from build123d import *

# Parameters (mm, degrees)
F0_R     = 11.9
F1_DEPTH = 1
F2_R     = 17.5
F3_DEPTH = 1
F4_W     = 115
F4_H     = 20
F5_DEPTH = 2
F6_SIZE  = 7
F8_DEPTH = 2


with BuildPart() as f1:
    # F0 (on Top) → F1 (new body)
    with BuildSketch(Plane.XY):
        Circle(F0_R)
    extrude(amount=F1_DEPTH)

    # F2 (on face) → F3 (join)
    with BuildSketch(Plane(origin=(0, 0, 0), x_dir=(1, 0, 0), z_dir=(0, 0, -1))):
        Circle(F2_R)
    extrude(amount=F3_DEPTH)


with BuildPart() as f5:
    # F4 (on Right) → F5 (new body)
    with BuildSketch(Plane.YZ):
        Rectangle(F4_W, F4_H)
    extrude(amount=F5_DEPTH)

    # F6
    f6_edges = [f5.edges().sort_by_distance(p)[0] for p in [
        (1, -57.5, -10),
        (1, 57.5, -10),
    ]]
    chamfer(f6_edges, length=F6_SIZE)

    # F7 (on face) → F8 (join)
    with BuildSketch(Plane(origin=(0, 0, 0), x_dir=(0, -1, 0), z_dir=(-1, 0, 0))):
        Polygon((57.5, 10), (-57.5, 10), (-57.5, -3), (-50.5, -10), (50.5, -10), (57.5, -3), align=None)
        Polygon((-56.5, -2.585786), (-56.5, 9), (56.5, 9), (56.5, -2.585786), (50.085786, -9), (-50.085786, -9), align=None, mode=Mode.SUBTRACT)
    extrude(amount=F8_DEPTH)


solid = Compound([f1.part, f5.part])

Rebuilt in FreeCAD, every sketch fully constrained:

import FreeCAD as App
import Part
import Sketcher
from FreeCAD import Vector


def edges_at(feature, points):
    """Names of the edges that pass closest to the given points."""
    edges = feature.Shape.Edges
    near = lambda p: min(range(len(edges)), key=lambda i: edges[i].distToShape(Part.Vertex(*p))[0])
    return sorted({f"Edge{near(p) + 1}" for p in points})

doc = App.newDocument("Part")
body = doc.addObject("PartDesign::Body", "Body")

# Sketch on XY plane
sketch1 = body.newObject("Sketcher::SketchObject", "Sketch")
sketch1.AttachmentSupport = (doc.getObject("XY_Plane"), [""])
sketch1.MapMode = "FlatFace"
sketch1.addGeometry(Part.Circle(Vector(0, 0, 0), Vector(0, 0, 1), 12), False)
sketch1.addConstraint([
    Sketcher.Constraint("Coincident", 0, 3, -1, 1),
    Sketcher.Constraint("Diameter", 0, 23.8),
])
pad1 = body.newObject("PartDesign::Pad", "Pad")
pad1.Profile = sketch1
pad1.Length = 1

# Sketch on XY plane
sketch2 = body.newObject("Sketcher::SketchObject", "Sketch001")
sketch2.AttachmentSupport = (doc.getObject("XY_Plane"), [""])
sketch2.MapMode = "FlatFace"
sketch2.addGeometry(Part.Circle(Vector(0, 0, 0), Vector(0, 0, 1), 18), False)
sketch2.addConstraint([
    Sketcher.Constraint("Coincident", 0, 3, -1, 1),
    Sketcher.Constraint("Diameter", 0, 35.0),
])
pad2 = body.newObject("PartDesign::Pad", "Pad001")
pad2.Profile = sketch2
pad2.Length = 1
pad2.Reversed = True
body2 = doc.addObject("PartDesign::Body", "Body001")

# Sketch on YZ plane
sketch3 = body2.newObject("Sketcher::SketchObject", "Sketch002")
sketch3.AttachmentSupport = (doc.getObject("YZ_Plane001"), [""])
sketch3.MapMode = "FlatFace"
sketch3.addGeometry([
    Part.LineSegment(Vector(-58, 10, 0), Vector(-58, -10, 0)),
    Part.LineSegment(Vector(-58, -10, 0), Vector(58, -10, 0)),
    Part.LineSegment(Vector(58, -10, 0), Vector(58, 10, 0)),
    Part.LineSegment(Vector(58, 10, 0), Vector(-58, 10, 0)),
], False)
sketch3.addConstraint([
    Sketcher.Constraint("Coincident", 0, 2, 1, 1),
    Sketcher.Constraint("Coincident", 1, 2, 2, 1),
    Sketcher.Constraint("Coincident", 2, 2, 3, 1),
    Sketcher.Constraint("Coincident", 3, 2, 0, 1),
    Sketcher.Constraint("Vertical", 0),
    Sketcher.Constraint("Horizontal", 1),
    Sketcher.Constraint("Vertical", 2),
    Sketcher.Constraint("Horizontal", 3),
    Sketcher.Constraint("Symmetric", 0, 2, 2, 2, -1, 1),
    Sketcher.Constraint("DistanceX", 1, 1, 1, 2, 115.0),
    Sketcher.Constraint("DistanceY", 0, 2, 0, 1, 20.0),
])
pad3 = body2.newObject("PartDesign::Pad", "Pad002")
pad3.Profile = sketch3
pad3.Length = 2
doc.recompute()

chamfer = body2.newObject("PartDesign::Chamfer", "Chamfer")
chamfer.Base = (pad3, edges_at(pad3, [(1, -57.5, -10), (1, 57.5, -10)]))
chamfer.Size = 7

# Sketch on YZ plane
sketch4 = body2.newObject("Sketcher::SketchObject", "Sketch003")
sketch4.AttachmentSupport = (doc.getObject("YZ_Plane001"), [""])
sketch4.MapMode = "FlatFace"
sketch4.addGeometry([
    Part.LineSegment(Vector(-58, 10, 0), Vector(58, 10, 0)),  # 0
    Part.LineSegment(Vector(58, 10, 0), Vector(58, -3, 0)),  # 1
    Part.LineSegment(Vector(58, -3, 0), Vector(50, -10, 0)),  # 2
    Part.LineSegment(Vector(50, -10, 0), Vector(-50, -10, 0)),  # 3
    Part.LineSegment(Vector(-50, -10, 0), Vector(-58, -3, 0)),  # 4
    Part.LineSegment(Vector(-58, -3, 0), Vector(-58, 10, 0)),  # 5
    Part.LineSegment(Vector(50, -9, 0), Vector(56, -3, 0)),  # 6
    Part.LineSegment(Vector(56, -3, 0), Vector(56, 9, 0)),  # 7
    Part.LineSegment(Vector(56, 9, 0), Vector(-56, 9, 0)),  # 8
    Part.LineSegment(Vector(-56, 9, 0), Vector(-56, -3, 0)),  # 9
    Part.LineSegment(Vector(-56, -3, 0), Vector(-50, -9, 0)),  # 10
    Part.LineSegment(Vector(-50, -9, 0), Vector(50, -9, 0)),  # 11
], False)
sketch4.addConstraint([
    Sketcher.Constraint("Coincident", 0, 2, 1, 1),
    Sketcher.Constraint("Coincident", 1, 2, 2, 1),
    Sketcher.Constraint("Coincident", 2, 2, 3, 1),
    Sketcher.Constraint("Coincident", 3, 2, 4, 1),
    Sketcher.Constraint("Coincident", 4, 2, 5, 1),
    Sketcher.Constraint("Coincident", 5, 2, 0, 1),
    Sketcher.Constraint("Coincident", 6, 2, 7, 1),
    Sketcher.Constraint("Coincident", 7, 2, 8, 1),
    Sketcher.Constraint("Coincident", 8, 2, 9, 1),
    Sketcher.Constraint("Coincident", 9, 2, 10, 1),
    Sketcher.Constraint("Coincident", 10, 2, 11, 1),
    Sketcher.Constraint("Coincident", 11, 2, 6, 1),
    Sketcher.Constraint("Horizontal", 0),
    Sketcher.Constraint("Vertical", 1),
    Sketcher.Constraint("Horizontal", 3),
    Sketcher.Constraint("Vertical", 5),
    Sketcher.Constraint("Vertical", 7),
    Sketcher.Constraint("Horizontal", 8),
    Sketcher.Constraint("Vertical", 9),
    Sketcher.Constraint("Horizontal", 11),
    Sketcher.Constraint("Symmetric", 1, 2, 4, 2, -2),
    Sketcher.Constraint("Symmetric", 6, 2, 9, 2, -2),
    Sketcher.Constraint("Perpendicular", 2, 4),
    Sketcher.Constraint("Perpendicular", 4, 6),
    Sketcher.Constraint("Perpendicular", 6, 10),
    Sketcher.Constraint("Equal", 2, 4),
    Sketcher.Constraint("DistanceX", 0, 1, 0, 2, 115.0),
    Sketcher.Constraint("DistanceX", 3, 2, 3, 1, 101.0),
    Sketcher.Constraint("DistanceX", 8, 2, 8, 1, 113.0),
    Sketcher.Constraint("DistanceY", 1, 2, 1, 1, 13.0),
    Sketcher.Constraint("DistanceY", -1, 1, 0, 2, 10.0),
    Sketcher.Constraint("DistanceY", -1, 1, 7, 2, 9.0),
    Sketcher.Constraint("DistanceY", 10, 2, -1, 1, 9.0),
    Sketcher.Constraint("DistanceX", 11, 1, 11, 2, 100.171572),
])
pad4 = body2.newObject("PartDesign::Pad", "Pad003")
pad4.Profile = sketch4
pad4.Length = 2
pad4.Reversed = True

doc.recompute()
